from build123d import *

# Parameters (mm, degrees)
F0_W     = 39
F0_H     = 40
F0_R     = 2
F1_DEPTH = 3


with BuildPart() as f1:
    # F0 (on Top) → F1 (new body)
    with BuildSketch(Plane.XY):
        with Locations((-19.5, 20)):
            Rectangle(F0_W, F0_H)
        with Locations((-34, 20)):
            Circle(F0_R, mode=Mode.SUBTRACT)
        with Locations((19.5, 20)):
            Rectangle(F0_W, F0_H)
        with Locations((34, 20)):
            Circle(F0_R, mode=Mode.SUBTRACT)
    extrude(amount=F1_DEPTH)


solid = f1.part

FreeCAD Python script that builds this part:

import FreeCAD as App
import Part
import Sketcher
Q = App.Units.Quantity

doc = App.newDocument("Part")
body = doc.addObject("PartDesign::Body", "Body")

# Sketch on XY plane
sketch1 = body.newObject("Sketcher::SketchObject", "Sketch")
sketch1.AttachmentSupport = (doc.getObject("XY_Plane"), [""])
sketch1.MapMode = "FlatFace"
sketch1.addGeometry([
    Part.LineSegment(App.Vector(-39, 40, 0), App.Vector(-39, 0, 0)),  # 0
    Part.LineSegment(App.Vector(-39, 0, 0), App.Vector(39, 0, 0)),  # 1
    Part.LineSegment(App.Vector(39, 0, 0), App.Vector(39, 40, 0)),  # 2
    Part.LineSegment(App.Vector(39, 40, 0), App.Vector(-39, 40, 0)),  # 3
    Part.Circle(App.Vector(-34, 20, 0), App.Vector(0, 0, 1), 2),  # 4
    Part.Circle(App.Vector(34, 20, 0), App.Vector(0, 0, 1), 2),  # 5
], False)
sketch1.addConstraint([
    Sketcher.Constraint("Coincident", 0, 2, 1, 1),
    Sketcher.Constraint("Coincident", 1, 2, 2, 1),
    Sketcher.Constraint("Coincident", 2, 2, 3, 1),
    Sketcher.Constraint("Coincident", 3, 2, 0, 1),
    Sketcher.Constraint("Vertical", 0),
    Sketcher.Constraint("Horizontal", 1),
    Sketcher.Constraint("Vertical", 2),
    Sketcher.Constraint("Horizontal", 3),
    Sketcher.Constraint("Equal", 4, 5),
    Sketcher.Constraint("Symmetric", 0, 2, 1, 2, -1, 1),
    Sketcher.Constraint("Symmetric", 4, 3, 5, 3, -2),
    Sketcher.Constraint("Diameter", 4, Q("4 mm")),
    Sketcher.Constraint("DistanceX", 1, 1, 1, 2, Q("78 mm")),
    Sketcher.Constraint("DistanceY", 0, 2, 0, 1, Q("40 mm")),
    Sketcher.Constraint("DistanceX", 4, 3, -1, 1, Q("34 mm")),
    Sketcher.Constraint("DistanceY", -1, 1, 4, 3, Q("20 mm")),
])
pad1 = body.newObject("PartDesign::Pad", "Pad")
pad1.Profile = sketch1
pad1.Length = 3

doc.recompute()
